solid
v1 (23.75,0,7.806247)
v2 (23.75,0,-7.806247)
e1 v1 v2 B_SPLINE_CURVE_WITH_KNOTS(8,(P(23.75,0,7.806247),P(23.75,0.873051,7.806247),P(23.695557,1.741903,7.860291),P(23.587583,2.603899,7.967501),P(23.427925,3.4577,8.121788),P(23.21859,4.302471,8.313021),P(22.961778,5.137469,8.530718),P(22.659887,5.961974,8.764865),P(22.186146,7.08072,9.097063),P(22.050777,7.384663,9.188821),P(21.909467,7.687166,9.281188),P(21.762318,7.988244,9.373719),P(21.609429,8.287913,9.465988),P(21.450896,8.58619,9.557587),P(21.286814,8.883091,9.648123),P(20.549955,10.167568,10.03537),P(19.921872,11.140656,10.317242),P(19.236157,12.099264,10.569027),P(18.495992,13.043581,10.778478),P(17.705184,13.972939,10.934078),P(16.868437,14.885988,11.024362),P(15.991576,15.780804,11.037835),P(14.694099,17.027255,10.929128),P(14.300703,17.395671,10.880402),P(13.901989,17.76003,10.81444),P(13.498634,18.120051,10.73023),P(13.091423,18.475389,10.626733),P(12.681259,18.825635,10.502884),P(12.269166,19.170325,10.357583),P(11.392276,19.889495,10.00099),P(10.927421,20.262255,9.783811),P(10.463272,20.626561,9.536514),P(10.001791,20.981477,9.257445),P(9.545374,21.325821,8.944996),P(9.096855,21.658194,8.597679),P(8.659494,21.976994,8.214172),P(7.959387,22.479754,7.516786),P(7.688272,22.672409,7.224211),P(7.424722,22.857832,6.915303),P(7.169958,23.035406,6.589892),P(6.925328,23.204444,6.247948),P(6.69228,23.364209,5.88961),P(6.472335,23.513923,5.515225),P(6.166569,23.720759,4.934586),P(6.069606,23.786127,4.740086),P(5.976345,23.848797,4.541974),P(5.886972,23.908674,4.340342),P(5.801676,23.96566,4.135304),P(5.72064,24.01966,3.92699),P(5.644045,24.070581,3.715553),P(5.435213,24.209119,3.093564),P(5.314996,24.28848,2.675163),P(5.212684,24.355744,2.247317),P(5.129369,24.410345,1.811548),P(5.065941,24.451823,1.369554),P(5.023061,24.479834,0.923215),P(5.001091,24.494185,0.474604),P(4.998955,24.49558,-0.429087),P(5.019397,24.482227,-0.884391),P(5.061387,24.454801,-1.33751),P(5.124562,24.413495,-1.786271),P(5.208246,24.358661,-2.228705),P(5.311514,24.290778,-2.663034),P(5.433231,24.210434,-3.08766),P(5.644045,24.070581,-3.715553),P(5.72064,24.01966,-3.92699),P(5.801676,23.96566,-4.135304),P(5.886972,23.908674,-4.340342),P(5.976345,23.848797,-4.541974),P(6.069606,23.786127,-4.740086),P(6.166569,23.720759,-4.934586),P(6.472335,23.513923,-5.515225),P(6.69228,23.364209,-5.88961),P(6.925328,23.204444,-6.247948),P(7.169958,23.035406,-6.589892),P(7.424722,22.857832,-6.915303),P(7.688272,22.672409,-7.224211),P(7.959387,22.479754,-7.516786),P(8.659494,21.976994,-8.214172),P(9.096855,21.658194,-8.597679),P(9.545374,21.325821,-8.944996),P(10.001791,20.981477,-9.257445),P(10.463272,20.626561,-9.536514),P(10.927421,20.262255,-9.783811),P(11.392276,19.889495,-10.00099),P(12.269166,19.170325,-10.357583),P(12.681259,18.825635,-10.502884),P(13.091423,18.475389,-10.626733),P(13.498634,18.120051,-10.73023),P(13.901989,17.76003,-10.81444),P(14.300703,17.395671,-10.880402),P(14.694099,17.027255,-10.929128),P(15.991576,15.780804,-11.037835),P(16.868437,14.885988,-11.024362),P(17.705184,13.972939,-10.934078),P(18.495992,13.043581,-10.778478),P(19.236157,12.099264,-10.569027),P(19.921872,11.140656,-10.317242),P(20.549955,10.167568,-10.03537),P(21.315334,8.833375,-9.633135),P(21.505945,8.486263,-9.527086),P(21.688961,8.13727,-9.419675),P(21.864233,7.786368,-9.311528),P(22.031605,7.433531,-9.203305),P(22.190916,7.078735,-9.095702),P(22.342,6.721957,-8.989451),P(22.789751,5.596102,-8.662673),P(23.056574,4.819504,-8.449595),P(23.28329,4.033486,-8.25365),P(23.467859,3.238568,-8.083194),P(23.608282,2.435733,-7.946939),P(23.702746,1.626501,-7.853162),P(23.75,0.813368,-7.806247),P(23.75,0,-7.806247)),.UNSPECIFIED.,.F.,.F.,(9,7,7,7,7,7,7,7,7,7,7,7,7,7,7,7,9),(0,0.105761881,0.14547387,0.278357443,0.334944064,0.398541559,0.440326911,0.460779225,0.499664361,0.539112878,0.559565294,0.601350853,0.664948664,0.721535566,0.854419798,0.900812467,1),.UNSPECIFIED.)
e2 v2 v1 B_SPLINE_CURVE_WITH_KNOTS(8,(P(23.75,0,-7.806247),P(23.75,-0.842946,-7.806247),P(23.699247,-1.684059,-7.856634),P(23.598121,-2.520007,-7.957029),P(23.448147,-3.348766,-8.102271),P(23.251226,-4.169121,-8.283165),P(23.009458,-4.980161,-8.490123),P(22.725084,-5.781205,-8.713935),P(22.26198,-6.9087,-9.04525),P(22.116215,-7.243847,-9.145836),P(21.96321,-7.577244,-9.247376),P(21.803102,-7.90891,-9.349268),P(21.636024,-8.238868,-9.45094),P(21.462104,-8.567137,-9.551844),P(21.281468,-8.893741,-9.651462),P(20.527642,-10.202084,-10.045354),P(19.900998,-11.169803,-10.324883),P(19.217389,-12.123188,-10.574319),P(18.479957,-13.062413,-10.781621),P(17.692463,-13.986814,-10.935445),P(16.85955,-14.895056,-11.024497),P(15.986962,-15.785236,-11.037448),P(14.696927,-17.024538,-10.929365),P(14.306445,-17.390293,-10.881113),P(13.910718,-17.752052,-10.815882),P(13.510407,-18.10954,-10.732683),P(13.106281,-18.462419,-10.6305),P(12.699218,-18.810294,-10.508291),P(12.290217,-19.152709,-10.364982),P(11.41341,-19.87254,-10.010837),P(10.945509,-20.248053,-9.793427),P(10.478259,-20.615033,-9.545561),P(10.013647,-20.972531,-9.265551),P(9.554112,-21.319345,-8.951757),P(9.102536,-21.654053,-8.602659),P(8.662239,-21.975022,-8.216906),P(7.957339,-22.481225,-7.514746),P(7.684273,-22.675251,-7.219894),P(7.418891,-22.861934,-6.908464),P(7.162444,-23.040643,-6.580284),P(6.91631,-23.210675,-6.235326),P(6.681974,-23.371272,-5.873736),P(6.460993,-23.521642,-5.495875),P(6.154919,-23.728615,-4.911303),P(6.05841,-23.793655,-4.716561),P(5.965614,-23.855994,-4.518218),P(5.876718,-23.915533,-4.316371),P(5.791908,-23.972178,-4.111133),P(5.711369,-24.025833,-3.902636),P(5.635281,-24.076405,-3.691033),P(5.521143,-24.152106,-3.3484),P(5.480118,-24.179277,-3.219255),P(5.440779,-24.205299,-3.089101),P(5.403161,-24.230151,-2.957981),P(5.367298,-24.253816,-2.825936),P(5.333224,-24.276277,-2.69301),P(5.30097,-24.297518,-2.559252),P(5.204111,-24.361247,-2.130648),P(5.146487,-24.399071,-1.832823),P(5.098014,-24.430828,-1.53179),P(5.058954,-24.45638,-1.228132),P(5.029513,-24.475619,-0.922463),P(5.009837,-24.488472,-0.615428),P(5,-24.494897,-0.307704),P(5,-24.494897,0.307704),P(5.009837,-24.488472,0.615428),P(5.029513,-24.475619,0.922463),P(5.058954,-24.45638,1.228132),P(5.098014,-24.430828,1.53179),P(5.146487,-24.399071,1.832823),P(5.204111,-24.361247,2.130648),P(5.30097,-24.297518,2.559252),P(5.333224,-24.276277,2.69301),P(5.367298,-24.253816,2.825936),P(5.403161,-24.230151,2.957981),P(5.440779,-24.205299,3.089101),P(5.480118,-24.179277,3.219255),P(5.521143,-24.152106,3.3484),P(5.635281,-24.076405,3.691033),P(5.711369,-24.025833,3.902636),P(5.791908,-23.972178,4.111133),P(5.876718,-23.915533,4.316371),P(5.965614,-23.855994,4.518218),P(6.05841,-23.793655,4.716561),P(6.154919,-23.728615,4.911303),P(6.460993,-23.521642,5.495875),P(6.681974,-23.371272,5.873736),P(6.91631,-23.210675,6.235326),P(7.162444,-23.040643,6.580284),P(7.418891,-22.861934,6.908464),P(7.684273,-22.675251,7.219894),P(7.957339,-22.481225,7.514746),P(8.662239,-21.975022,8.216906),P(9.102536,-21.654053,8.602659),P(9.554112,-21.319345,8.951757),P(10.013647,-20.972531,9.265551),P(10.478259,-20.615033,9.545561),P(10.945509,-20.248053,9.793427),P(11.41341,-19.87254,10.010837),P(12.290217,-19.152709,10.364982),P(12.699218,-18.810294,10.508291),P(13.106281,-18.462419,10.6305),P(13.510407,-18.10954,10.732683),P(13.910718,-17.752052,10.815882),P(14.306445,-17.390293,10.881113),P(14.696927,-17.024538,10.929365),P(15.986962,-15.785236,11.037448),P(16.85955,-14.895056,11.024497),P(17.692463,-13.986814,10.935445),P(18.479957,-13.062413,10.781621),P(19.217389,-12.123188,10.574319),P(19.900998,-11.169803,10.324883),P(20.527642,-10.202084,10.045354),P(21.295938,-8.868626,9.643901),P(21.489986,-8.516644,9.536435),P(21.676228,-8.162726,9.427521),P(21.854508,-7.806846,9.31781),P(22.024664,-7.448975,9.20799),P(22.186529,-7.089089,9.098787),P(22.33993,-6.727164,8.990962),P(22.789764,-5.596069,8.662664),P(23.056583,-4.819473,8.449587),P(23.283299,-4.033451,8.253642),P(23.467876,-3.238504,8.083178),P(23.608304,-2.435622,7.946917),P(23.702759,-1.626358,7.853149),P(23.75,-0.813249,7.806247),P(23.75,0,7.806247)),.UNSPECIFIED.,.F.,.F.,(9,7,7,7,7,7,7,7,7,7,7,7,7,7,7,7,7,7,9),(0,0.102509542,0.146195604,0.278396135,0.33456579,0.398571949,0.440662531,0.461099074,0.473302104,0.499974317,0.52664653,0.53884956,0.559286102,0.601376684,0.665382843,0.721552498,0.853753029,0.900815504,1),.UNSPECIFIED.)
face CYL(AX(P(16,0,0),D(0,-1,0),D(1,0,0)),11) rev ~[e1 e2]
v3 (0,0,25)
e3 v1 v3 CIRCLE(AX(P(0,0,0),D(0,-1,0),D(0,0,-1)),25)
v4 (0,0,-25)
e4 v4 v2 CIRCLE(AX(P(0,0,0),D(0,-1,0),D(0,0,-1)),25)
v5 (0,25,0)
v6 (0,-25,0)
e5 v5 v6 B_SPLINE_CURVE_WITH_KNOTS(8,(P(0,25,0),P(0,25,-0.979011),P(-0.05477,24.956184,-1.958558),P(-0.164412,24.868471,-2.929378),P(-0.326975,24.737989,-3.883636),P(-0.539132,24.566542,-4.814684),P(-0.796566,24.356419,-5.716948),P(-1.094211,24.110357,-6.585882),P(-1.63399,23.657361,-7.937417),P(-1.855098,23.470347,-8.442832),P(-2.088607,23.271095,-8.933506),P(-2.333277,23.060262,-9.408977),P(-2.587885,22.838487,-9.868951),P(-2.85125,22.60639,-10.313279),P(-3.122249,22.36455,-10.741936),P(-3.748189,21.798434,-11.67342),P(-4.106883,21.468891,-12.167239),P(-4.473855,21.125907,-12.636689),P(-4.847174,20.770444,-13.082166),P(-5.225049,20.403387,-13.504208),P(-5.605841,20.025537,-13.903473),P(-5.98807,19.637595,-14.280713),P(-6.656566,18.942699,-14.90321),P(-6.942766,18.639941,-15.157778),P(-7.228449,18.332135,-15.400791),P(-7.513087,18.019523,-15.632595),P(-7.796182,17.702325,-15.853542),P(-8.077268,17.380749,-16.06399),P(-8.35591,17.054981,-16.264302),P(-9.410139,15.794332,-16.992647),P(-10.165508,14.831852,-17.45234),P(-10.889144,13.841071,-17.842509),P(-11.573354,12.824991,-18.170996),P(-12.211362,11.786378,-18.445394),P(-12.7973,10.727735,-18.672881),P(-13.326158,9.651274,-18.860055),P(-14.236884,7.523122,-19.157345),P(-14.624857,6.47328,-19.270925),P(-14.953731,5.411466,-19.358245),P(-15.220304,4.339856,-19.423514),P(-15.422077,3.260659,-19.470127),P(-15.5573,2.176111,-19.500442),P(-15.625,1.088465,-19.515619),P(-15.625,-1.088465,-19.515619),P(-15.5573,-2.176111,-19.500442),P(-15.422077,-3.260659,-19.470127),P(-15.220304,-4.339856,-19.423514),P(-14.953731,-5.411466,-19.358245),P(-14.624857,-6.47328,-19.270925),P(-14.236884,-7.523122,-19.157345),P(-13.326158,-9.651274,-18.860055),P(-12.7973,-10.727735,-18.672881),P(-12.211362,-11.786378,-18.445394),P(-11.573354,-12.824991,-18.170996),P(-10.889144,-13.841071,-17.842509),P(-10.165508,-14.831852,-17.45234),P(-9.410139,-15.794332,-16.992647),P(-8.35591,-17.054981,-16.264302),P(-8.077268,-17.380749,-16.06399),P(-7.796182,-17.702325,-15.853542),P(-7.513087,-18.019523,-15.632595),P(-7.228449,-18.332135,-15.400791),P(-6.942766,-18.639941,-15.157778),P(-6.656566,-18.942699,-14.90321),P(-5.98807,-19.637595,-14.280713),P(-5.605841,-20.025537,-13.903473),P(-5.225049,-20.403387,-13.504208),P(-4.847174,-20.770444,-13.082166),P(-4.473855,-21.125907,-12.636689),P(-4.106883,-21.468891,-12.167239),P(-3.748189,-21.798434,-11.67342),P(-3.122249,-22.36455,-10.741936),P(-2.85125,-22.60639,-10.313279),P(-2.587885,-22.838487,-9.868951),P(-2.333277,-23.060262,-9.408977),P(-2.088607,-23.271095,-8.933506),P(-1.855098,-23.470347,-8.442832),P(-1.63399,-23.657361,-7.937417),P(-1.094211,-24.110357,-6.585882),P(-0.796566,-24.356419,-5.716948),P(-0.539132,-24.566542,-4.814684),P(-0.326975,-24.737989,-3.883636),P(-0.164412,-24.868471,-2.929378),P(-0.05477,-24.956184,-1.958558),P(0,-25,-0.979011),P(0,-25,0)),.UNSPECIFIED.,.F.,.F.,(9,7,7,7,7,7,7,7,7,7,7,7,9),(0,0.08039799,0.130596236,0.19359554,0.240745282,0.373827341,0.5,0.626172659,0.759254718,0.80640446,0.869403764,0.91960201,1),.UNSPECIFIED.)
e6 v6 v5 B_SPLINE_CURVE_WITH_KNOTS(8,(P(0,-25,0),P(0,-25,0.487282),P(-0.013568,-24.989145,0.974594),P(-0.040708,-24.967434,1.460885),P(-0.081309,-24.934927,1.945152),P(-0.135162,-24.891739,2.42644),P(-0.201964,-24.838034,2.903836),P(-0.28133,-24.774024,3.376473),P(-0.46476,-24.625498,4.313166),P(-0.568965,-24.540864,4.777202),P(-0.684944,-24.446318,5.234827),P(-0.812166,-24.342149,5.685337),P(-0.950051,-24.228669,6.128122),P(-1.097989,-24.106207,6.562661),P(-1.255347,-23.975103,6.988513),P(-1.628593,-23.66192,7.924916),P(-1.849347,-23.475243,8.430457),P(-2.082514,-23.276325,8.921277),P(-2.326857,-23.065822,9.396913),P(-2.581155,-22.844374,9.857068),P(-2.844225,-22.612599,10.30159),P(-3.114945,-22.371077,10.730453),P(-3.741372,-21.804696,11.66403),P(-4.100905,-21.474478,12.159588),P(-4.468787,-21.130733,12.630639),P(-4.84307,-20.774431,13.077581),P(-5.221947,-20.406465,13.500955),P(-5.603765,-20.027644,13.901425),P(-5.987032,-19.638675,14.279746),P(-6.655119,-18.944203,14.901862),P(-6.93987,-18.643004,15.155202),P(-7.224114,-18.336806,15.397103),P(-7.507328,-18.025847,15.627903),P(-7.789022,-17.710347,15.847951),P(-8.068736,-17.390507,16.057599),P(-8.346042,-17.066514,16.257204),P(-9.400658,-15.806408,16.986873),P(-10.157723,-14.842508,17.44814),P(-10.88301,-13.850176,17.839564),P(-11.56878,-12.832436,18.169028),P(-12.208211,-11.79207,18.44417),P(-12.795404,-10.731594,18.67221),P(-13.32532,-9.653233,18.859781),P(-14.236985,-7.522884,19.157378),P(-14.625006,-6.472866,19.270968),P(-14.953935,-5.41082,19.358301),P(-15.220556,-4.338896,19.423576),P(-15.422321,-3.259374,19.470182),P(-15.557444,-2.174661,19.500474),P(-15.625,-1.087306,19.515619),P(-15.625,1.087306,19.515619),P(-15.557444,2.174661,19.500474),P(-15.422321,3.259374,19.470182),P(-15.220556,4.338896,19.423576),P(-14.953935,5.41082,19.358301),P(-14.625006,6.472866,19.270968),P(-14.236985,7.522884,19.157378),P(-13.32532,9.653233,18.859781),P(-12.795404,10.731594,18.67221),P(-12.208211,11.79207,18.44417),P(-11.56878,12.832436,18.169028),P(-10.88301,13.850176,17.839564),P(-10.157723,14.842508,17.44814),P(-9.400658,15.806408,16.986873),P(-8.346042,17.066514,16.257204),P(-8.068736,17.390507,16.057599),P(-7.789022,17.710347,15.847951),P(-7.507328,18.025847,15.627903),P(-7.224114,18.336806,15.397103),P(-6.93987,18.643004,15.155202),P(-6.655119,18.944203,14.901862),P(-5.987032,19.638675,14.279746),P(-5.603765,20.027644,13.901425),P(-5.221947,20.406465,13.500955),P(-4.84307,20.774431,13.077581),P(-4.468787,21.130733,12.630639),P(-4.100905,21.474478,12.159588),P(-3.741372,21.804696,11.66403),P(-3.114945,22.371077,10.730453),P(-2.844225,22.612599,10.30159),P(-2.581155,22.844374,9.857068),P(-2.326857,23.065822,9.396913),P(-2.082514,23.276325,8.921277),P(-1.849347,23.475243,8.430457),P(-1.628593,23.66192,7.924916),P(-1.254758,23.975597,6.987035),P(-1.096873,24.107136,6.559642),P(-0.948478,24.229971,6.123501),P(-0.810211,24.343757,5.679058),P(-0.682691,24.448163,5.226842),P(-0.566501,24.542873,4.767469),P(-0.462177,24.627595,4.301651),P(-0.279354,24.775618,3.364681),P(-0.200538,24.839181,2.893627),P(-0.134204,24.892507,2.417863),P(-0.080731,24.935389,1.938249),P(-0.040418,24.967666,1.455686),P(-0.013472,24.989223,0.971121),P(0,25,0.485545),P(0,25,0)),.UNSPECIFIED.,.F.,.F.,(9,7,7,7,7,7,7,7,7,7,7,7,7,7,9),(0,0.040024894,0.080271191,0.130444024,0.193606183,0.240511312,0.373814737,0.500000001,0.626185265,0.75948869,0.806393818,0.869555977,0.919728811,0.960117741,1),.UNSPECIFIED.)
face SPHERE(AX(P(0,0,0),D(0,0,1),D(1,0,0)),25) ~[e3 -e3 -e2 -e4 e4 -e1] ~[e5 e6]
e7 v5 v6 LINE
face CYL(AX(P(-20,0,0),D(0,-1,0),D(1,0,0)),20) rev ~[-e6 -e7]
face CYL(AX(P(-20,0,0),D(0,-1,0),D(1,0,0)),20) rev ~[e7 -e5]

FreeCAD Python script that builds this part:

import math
import FreeCAD as App
import Part
import Sketcher

doc = App.newDocument("Part")
body = doc.addObject("PartDesign::Body", "Body")

sketch1 = body.newObject("Sketcher::SketchObject", "Sketch")
sketch1.AttachmentSupport = (doc.getObject("XZ_Plane"), [""])
sketch1.MapMode = "FlatFace"
sketch1.addGeometry([
    Part.LineSegment(App.Vector(0, 25, 0), App.Vector(0, -25, 0)),
    Part.ArcOfCircle(Part.Circle(App.Vector(0, 0, 0), App.Vector(0, 0, 1), 25), math.radians(-90), math.radians(90)),
], False)
sketch1.addConstraint([
    Sketcher.Constraint("Coincident", 0, 1, 1, 2),
    Sketcher.Constraint("Coincident", 1, 1, 0, 2),
    Sketcher.Constraint("Vertical", 0),
    Sketcher.Constraint("Coincident", 1, 3, -1, 1),
    Sketcher.Constraint("PointOnObject", 0, 1, -2),
    Sketcher.Constraint("Radius", 1, 25.0),
])
revolution = body.newObject("PartDesign::Revolution", "Revolution")
revolution.Profile = sketch1
revolution.ReferenceAxis = (sketch1, ["V_Axis"])
revolution.Angle = 360

sketch2 = body.newObject("Sketcher::SketchObject", "Sketch001")
sketch2.AttachmentSupport = (doc.getObject("XZ_Plane"), [""])
sketch2.MapMode = "FlatFace"
sketch2.addGeometry(Part.Circle(App.Vector(16, 0, 0), App.Vector(0, 0, 1), 11), False)
sketch2.addConstraint([
    Sketcher.Constraint("PointOnObject", 0, 3, -1),
    Sketcher.Constraint("Diameter", 0, 22.0),
    Sketcher.Constraint("DistanceX", -1, 1, 0, 3, 16.0),
])
pocket1 = body.newObject("PartDesign::Pocket", "Pocket")
pocket1.Profile = sketch2
pocket1.Length = 50
pocket1.Midplane = True

sketch3 = body.newObject("Sketcher::SketchObject", "Sketch002")
sketch3.AttachmentSupport = (doc.getObject("XZ_Plane"), [""])
sketch3.MapMode = "FlatFace"
sketch3.addGeometry(Part.Circle(App.Vector(-20, 0, 0), App.Vector(0, 0, 1), 20), False)
sketch3.addConstraint([
    Sketcher.Constraint("PointOnObject", 0, 3, -1),
    Sketcher.Constraint("Diameter", 0, 40.0),
    Sketcher.Constraint("DistanceX", 0, 3, -1, 1, 20.0),
])
pocket2 = body.newObject("PartDesign::Pocket", "Pocket001")
pocket2.Profile = sketch3
pocket2.Length = 50
pocket2.Midplane = True

doc.recompute()
